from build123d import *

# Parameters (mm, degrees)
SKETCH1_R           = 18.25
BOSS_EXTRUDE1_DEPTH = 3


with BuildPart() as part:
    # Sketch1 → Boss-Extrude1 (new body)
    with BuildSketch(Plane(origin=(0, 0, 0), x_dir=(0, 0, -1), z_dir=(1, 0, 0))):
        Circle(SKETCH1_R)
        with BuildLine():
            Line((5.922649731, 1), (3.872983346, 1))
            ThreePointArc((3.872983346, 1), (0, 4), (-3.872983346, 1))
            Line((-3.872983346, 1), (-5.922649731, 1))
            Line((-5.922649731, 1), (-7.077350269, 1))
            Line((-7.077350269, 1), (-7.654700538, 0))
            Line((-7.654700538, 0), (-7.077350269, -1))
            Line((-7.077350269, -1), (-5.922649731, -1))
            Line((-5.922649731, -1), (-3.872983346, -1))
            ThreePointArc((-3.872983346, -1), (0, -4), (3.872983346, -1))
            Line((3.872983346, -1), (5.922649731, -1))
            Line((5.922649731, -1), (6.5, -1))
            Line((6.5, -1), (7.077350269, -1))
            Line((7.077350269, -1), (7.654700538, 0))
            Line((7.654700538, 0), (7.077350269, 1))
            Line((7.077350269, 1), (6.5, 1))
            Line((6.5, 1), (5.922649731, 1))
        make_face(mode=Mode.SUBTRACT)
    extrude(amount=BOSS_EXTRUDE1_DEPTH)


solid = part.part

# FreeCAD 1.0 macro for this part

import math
import FreeCAD as App
import Part
import Sketcher
from FreeCAD import Vector
Q = App.Units.Quantity

doc = App.newDocument("Part")
body = doc.addObject("PartDesign::Body", "Body")

sketch1 = body.newObject("Sketcher::SketchObject", "Sketch")
sketch1.AttachmentSupport = (doc.getObject("YZ_Plane"), [""])
sketch1.MapMode = "FlatFace"
sketch1.addGeometry([
    Part.Circle(Vector(0, 0, 0), Vector(0, 0, 1), 18.2),
    Part.ArcOfCircle(Part.Circle(Vector(0, 0, 0), Vector(0, 0, 1), 4), math.radians(-76), math.radians(76)),
    Part.LineSegment(Vector(1, -3.9, 0), Vector(1, -7.1, 0)),
    Part.LineSegment(Vector(1, -7.1, 0), Vector(0, -7.7, 0)),
    Part.LineSegment(Vector(0, -7.7, 0), Vector(-1, -7.1, 0)),
    Part.LineSegment(Vector(-1, -7.1, 0), Vector(-1, -3.9, 0)),
    Part.ArcOfCircle(Part.Circle(Vector(0, 0, 0), Vector(0, 0, 1), 4), math.radians(104), math.radians(256)),
    Part.LineSegment(Vector(-1, 3.9, 0), Vector(-1, 7.1, 0)),
    Part.LineSegment(Vector(-1, 7.1, 0), Vector(0, 7.7, 0)),
    Part.LineSegment(Vector(0, 7.7, 0), Vector(1, 7.1, 0)),
    Part.LineSegment(Vector(1, 7.1, 0), Vector(1, 3.9, 0)),
], False)
sketch1.addConstraint([
    Sketcher.Constraint("Coincident", 1, 1, 2, 1),
    Sketcher.Constraint("Coincident", 2, 2, 3, 1),
    Sketcher.Constraint("Coincident", 3, 2, 4, 1),
    Sketcher.Constraint("Coincident", 4, 2, 5, 1),
    Sketcher.Constraint("Coincident", 5, 2, 6, 2),
    Sketcher.Constraint("Coincident", 6, 1, 7, 1),
    Sketcher.Constraint("Coincident", 7, 2, 8, 1),
    Sketcher.Constraint("Coincident", 8, 2, 9, 1),
    Sketcher.Constraint("Coincident", 9, 2, 10, 1),
    Sketcher.Constraint("Coincident", 10, 2, 1, 2),
    Sketcher.Constraint("Vertical", 2),
    Sketcher.Constraint("Vertical", 5),
    Sketcher.Constraint("Vertical", 7),
    Sketcher.Constraint("Vertical", 10),
    Sketcher.Constraint("Coincident", 0, 3, -1, 1),
    Sketcher.Constraint("Coincident", 1, 3, -1, 1),
    Sketcher.Constraint("Coincident", 6, 3, -1, 1),
    Sketcher.Constraint("Equal", 1, 6),
    Sketcher.Constraint("Symmetric", 2, 2, 7, 2, -1, 1),
    Sketcher.Constraint("Symmetric", 3, 2, 8, 2, -1, 1),
    Sketcher.Constraint("Symmetric", 4, 2, 9, 2, -1, 1),
    Sketcher.Constraint("Symmetric", 2, 2, 4, 2, -2),
    Sketcher.Constraint("PointOnObject", 3, 2, -2),
    Sketcher.Constraint("Radius", 1, 4.0),
    Sketcher.Constraint("Diameter", 0, 36.5),
    Sketcher.Constraint("Angle", 3, Q("-150 deg")),
    Sketcher.Constraint("DistanceX", -1, 1, 1, 1, 1.0),
    Sketcher.Constraint("DistanceY", 3, 2, -1, 1, 7.654701),
])
pad1 = body.newObject("PartDesign::Pad", "Pad")
pad1.Profile = sketch1
pad1.Length = 3

doc.recompute()
